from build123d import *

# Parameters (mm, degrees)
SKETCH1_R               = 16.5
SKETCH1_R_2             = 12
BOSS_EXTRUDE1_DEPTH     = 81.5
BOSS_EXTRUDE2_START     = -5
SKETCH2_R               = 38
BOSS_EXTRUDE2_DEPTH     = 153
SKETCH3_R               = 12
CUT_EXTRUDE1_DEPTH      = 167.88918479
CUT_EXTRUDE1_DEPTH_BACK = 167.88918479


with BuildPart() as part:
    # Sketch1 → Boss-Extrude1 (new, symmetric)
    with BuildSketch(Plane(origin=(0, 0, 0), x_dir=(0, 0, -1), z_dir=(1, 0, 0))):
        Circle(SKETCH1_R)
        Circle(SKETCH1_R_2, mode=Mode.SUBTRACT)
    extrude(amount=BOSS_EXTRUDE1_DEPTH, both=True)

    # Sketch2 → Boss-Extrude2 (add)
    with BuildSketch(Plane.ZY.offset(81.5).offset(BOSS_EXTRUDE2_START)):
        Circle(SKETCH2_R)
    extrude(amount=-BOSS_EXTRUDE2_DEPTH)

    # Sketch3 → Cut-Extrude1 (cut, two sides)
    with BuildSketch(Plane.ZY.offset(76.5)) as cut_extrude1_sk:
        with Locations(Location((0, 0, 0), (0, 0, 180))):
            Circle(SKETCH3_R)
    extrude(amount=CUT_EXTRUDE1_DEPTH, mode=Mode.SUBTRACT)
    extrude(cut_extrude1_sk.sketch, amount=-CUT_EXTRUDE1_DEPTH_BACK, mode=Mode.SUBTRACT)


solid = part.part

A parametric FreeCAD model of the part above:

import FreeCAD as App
import Part
import Sketcher
from FreeCAD import Vector

doc = App.newDocument("Part")
body = doc.addObject("PartDesign::Body", "Body")

sketch1 = body.newObject("Sketcher::SketchObject", "Sketch")
sketch1.AttachmentSupport = (doc.getObject("YZ_Plane"), [""])
sketch1.MapMode = "FlatFace"
sketch1.addGeometry([
    Part.Circle(Vector(0, 0, 0), Vector(0, 0, 1), 16),
    Part.Circle(Vector(0, 0, 0), Vector(0, 0, 1), 12),
], False)
sketch1.addConstraint([
    Sketcher.Constraint("Coincident", 0, 3, -1, 1),
    Sketcher.Constraint("Coincident", 1, 3, -1, 1),
    Sketcher.Constraint("Diameter", 0, 33.0),
    Sketcher.Constraint("Diameter", 1, 24.0),
])
pad1 = body.newObject("PartDesign::Pad", "Pad")
pad1.Profile = sketch1
pad1.Length = 163
pad1.Midplane = True

sketch2 = body.newObject("Sketcher::SketchObject", "Sketch001")
sketch2.AttachmentSupport = (doc.getObject("YZ_Plane"), [""])
sketch2.MapMode = "FlatFace"
sketch2.AttachmentOffset = App.Placement(Vector(0, 0, -76.5), App.Rotation())
sketch2.addGeometry(Part.Circle(Vector(0, 0, 0), Vector(0, 0, 1), 38), False)
sketch2.addConstraint([
    Sketcher.Constraint("Coincident", 0, 3, -1, 1),
    Sketcher.Constraint("Diameter", 0, 76.0),
])
pad2 = body.newObject("PartDesign::Pad", "Pad001")
pad2.Profile = sketch2
pad2.Length = 153

sketch3 = body.newObject("Sketcher::SketchObject", "Sketch002")
sketch3.AttachmentSupport = (doc.getObject("YZ_Plane"), [""])
sketch3.MapMode = "FlatFace"
sketch3.AttachmentOffset = App.Placement(Vector(0, 0, -76.5), App.Rotation())
sketch3.addGeometry(Part.Circle(Vector(0, 0, 0), Vector(0, 0, 1), 12), False)
sketch3.addConstraint([
    Sketcher.Constraint("Coincident", 0, 3, -1, 1),
    Sketcher.Constraint("Diameter", 0, 24.0),
])
pocket1 = body.newObject("PartDesign::Pocket", "Pocket")
pocket1.Profile = sketch3
pocket1.Type = "ThroughAll"
pocket1.Midplane = True

doc.recompute()
